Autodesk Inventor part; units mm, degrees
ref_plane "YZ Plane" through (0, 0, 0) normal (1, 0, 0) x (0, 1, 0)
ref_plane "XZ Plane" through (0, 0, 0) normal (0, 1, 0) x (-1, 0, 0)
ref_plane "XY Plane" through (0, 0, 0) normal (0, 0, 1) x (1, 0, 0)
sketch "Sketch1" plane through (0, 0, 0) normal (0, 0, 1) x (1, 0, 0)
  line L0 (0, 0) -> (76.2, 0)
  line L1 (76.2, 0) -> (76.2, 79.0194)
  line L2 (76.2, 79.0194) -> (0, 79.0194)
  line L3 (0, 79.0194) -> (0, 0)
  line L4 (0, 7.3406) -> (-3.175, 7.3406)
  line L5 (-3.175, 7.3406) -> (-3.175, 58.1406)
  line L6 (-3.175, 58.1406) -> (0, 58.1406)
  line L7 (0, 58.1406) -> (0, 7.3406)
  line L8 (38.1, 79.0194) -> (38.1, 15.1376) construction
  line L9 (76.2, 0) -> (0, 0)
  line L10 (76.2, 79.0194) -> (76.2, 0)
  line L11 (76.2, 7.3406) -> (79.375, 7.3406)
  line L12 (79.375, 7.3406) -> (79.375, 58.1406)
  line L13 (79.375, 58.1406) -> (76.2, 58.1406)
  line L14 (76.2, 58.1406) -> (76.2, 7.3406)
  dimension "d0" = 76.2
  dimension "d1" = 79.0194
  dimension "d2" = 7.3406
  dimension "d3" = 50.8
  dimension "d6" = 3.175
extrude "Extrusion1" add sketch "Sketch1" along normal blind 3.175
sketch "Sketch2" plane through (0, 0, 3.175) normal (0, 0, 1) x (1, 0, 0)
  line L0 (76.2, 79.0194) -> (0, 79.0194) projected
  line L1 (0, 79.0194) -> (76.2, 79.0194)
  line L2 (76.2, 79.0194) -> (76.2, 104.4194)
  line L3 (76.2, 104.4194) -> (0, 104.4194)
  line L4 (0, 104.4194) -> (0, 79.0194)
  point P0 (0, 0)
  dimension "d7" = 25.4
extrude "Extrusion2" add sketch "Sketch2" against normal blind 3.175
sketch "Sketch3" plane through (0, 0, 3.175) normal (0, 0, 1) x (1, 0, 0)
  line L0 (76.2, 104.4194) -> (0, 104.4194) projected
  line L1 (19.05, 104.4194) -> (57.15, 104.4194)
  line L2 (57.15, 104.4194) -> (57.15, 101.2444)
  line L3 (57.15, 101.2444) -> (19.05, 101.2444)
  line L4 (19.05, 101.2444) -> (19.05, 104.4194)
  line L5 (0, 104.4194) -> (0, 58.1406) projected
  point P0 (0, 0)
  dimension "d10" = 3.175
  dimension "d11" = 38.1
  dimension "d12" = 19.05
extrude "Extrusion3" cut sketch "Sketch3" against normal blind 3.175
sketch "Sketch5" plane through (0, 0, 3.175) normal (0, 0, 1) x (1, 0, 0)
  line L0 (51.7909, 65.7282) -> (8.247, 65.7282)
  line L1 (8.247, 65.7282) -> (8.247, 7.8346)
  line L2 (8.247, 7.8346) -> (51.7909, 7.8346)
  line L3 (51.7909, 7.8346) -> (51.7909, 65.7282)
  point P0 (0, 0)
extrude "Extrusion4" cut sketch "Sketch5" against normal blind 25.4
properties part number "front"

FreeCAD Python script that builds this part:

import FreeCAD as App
import Part
import Sketcher
from FreeCAD import Vector
Q = App.Units.Quantity


def add_polygon(sketch, points):
    """Adds a closed chain of lines whose ends are joined by coincident constraints."""
    first, n = sketch.GeometryCount, len(points)
    for a, b in zip(points, points[1:] + points[:1]):
        sketch.addGeometry(Part.LineSegment(App.Vector(*a, 0), App.Vector(*b, 0)), False)
    for i in range(n):
        sketch.addConstraint(Sketcher.Constraint("Coincident", first + i, 2, first + (i + 1) % n, 1))

doc = App.newDocument("Part")
params = doc.addObject("Spreadsheet::Sheet", "Params")
for row, (alias, value) in enumerate([
    ("sketch1_width", "3 in"),
    ("sketch1_height", "2 in"),
    ("sketch1_width2", "0.125 in"),
    ("sketch1_height2", "0.289 in"),
    ("pad1_length", "0.125 in"),
    ("sketch2_height", "1 in"),
    ("sketch2_width", "3 in"),
    ("pad2_length", "0.125 in"),
    ("sketch3_width", "1.5 in"),
    ("sketch3_height", "0.125 in"),
    ("pocket1_length", "0.125 in"),
    ("pocket2_length", "1 in"),
], start=1):
    params.set(f"A{row}", alias)
    params.set(f"B{row}", "=" + value)
    params.setAlias(f"B{row}", alias)

body = doc.addObject("PartDesign::Body", "Body")

sketch1 = body.newObject("Sketcher::SketchObject", "Sketch")
sketch1.AttachmentSupport = (doc.getObject("XY_Plane"), [""])
sketch1.MapMode = "FlatFace"
add_polygon(sketch1, [(0, 7.3), (0, 0), (76.2, 0), (76.2, 7.3), (79.4, 7.3), (79.4, 58.1), (76.2, 58.1), (76.2, 79), (0, 79), (0, 58.1), (-3.2, 58.1), (-3.2, 7.3)])
sketch1.addConstraint([
    Sketcher.Constraint("Vertical", 0),
    Sketcher.Constraint("Horizontal", 1),
    Sketcher.Constraint("Vertical", 2),
    Sketcher.Constraint("Horizontal", 3),
    Sketcher.Constraint("Vertical", 4),
    Sketcher.Constraint("Horizontal", 5),
    Sketcher.Constraint("Vertical", 6),
    Sketcher.Constraint("Horizontal", 7),
    Sketcher.Constraint("Vertical", 8),
    Sketcher.Constraint("Horizontal", 9),
    Sketcher.Constraint("Vertical", 10),
    Sketcher.Constraint("Horizontal", 11),
    Sketcher.Constraint("Coincident", 0, 2, -1, 1),
    Sketcher.Constraint("PointOnObject", 7, 2, -2),
    Sketcher.Constraint("Horizontal", 5, 2, 8, 2),
    Sketcher.Constraint("Horizontal", 3, 2, 10, 2),
    Sketcher.Constraint("Vertical", 2, 2, 5, 2),
    Sketcher.Constraint("Equal", 5, 9),
    Sketcher.Constraint("DistanceX", 1, 1, 1, 2, Q("3 in")),
    Sketcher.Constraint("DistanceY", 4, 1, 4, 2, Q("2 in")),
    Sketcher.Constraint("DistanceX", 3, 1, 3, 2, Q("0.125 in")),
    Sketcher.Constraint("DistanceY", 0, 2, 0, 1, Q("0.289 in")),
    Sketcher.Constraint("DistanceY", -1, 1, 6, 2, Q("3.111 in")),
])
sketch1.setExpression("Constraints[30]", "Params.sketch1_width")
sketch1.setExpression("Constraints[31]", "Params.sketch1_height")
sketch1.setExpression("Constraints[32]", "Params.sketch1_width2")
sketch1.setExpression("Constraints[33]", "Params.sketch1_height2")
pad1 = body.newObject("PartDesign::Pad", "Pad")
pad1.Profile = sketch1
pad1.setExpression("Length", "Params.pad1_length")

sketch2 = body.newObject("Sketcher::SketchObject", "Sketch001")
sketch2.AttachmentSupport = (doc.getObject("XY_Plane"), [""])
sketch2.MapMode = "FlatFace"
sketch2.AttachmentOffset = App.Placement(Vector(0, 0, 0.125 * 25.4), App.Rotation())
add_polygon(sketch2, [(0, 79), (76, 79), (76, 104), (0, 104)])
sketch2.addConstraint([
    Sketcher.Constraint("Horizontal", 0),
    Sketcher.Constraint("Vertical", 1),
    Sketcher.Constraint("Horizontal", 2),
    Sketcher.Constraint("Vertical", 3),
    Sketcher.Constraint("PointOnObject", 2, 2, -2),
    Sketcher.Constraint("DistanceY", 1, 1, 1, 2, Q("1 in")),
    Sketcher.Constraint("DistanceX", 0, 1, 0, 2, Q("3 in")),
    Sketcher.Constraint("DistanceY", -1, 1, 0, 2, Q("3.111 in")),
])
sketch2.setExpression("Constraints[9]", "Params.sketch2_height")
sketch2.setExpression("Constraints[10]", "Params.sketch2_width")
pad2 = body.newObject("PartDesign::Pad", "Pad001")
pad2.Profile = sketch2
pad2.setExpression("Length", "Params.pad2_length")
pad2.Reversed = True

sketch3 = body.newObject("Sketcher::SketchObject", "Sketch002")
sketch3.AttachmentSupport = (doc.getObject("XY_Plane"), [""])
sketch3.MapMode = "FlatFace"
sketch3.AttachmentOffset = App.Placement(Vector(0, 0, 0.125 * 25.4), App.Rotation())
add_polygon(sketch3, [(57.1, 101.2), (57.1, 104.4), (19.1, 104.4), (19.1, 101.2)])
sketch3.addConstraint([
    Sketcher.Constraint("Vertical", 0),
    Sketcher.Constraint("Horizontal", 1),
    Sketcher.Constraint("Vertical", 2),
    Sketcher.Constraint("Horizontal", 3),
    Sketcher.Constraint("DistanceX", 1, 2, 1, 1, Q("1.5 in")),
    Sketcher.Constraint("DistanceY", 0, 1, 0, 2, Q("0.125 in")),
    Sketcher.Constraint("DistanceX", -1, 1, 1, 2, Q("0.75 in")),
    Sketcher.Constraint("DistanceY", -1, 1, 0, 2, Q("4.111 in")),
])
sketch3.setExpression("Constraints[8]", "Params.sketch3_width")
sketch3.setExpression("Constraints[9]", "Params.sketch3_height")
pocket1 = body.newObject("PartDesign::Pocket", "Pocket")
pocket1.Profile = sketch3
pocket1.setExpression("Length", "Params.pocket1_length")

sketch4 = body.newObject("Sketcher::SketchObject", "Sketch003")
sketch4.AttachmentSupport = (doc.getObject("XY_Plane"), [""])
sketch4.MapMode = "FlatFace"
sketch4.AttachmentOffset = App.Placement(Vector(0, 0, 0.125 * 25.4), App.Rotation())
add_polygon(sketch4, [(52, 8), (52, 66), (8, 66), (8, 8)])
sketch4.addConstraint([
    Sketcher.Constraint("Vertical", 0),
    Sketcher.Constraint("Horizontal", 1),
    Sketcher.Constraint("Vertical", 2),
    Sketcher.Constraint("Horizontal", 3),
    Sketcher.Constraint("DistanceX", -1, 1, 0, 2, Q("2.039 in")),
    Sketcher.Constraint("DistanceX", 1, 2, 1, 1, Q("43.544 mm")),
    Sketcher.Constraint("DistanceY", 0, 1, 0, 2, Q("57.8936 mm")),
    Sketcher.Constraint("DistanceY", -1, 1, 0, 2, Q("65.7282 mm")),
])
pocket2 = body.newObject("PartDesign::Pocket", "Pocket001")
pocket2.Profile = sketch4
pocket2.setExpression("Length", "Params.pocket2_length")

doc.recompute()
